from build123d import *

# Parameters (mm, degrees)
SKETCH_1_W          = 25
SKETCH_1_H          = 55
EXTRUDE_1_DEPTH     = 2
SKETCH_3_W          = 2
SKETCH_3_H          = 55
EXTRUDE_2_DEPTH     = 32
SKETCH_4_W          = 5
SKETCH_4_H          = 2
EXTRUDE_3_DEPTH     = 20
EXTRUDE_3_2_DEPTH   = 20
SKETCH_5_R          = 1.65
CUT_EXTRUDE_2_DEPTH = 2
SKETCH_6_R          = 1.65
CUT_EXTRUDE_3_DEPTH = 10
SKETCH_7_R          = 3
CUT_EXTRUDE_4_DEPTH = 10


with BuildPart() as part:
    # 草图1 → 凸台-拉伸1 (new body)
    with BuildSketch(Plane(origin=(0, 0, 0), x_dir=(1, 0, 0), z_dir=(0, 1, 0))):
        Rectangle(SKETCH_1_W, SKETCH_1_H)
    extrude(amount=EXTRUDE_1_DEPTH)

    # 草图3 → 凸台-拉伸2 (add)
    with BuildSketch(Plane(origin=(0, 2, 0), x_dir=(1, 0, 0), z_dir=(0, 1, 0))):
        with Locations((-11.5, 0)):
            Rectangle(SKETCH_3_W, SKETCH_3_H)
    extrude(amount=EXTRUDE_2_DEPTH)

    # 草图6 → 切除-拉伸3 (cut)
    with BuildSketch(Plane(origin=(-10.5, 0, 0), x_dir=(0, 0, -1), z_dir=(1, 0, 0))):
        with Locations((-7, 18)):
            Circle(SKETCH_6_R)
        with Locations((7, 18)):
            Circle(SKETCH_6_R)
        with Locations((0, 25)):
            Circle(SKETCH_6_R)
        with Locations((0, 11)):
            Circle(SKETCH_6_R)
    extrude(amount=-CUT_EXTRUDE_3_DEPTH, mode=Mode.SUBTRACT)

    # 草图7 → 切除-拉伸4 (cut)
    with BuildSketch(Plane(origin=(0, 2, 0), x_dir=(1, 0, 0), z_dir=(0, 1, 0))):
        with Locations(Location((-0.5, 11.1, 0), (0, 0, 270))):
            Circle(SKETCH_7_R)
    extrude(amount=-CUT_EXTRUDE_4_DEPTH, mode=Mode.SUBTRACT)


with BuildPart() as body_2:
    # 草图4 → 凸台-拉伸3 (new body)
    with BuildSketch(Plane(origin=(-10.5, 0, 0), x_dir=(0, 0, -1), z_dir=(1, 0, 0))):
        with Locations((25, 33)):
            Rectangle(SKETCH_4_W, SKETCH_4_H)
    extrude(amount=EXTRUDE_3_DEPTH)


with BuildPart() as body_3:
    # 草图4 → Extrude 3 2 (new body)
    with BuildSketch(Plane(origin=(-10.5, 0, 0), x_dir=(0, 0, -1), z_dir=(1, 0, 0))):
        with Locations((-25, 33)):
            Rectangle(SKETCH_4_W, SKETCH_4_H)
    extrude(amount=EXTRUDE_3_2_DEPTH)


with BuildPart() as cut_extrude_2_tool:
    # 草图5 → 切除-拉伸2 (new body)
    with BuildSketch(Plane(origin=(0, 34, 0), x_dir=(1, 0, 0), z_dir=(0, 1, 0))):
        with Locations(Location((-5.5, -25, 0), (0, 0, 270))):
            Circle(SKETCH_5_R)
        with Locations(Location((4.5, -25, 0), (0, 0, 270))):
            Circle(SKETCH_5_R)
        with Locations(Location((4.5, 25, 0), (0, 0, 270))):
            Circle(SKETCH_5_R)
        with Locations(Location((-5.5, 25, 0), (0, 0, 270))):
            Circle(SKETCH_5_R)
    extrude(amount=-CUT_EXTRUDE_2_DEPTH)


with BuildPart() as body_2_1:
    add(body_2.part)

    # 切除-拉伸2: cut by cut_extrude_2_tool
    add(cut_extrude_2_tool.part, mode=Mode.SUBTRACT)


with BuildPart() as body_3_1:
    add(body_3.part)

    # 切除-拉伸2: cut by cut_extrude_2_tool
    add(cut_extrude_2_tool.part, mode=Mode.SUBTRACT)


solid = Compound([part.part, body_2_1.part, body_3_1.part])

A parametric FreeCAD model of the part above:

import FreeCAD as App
import Part
import Sketcher

doc = App.newDocument("Part")
body = doc.addObject("PartDesign::Body", "Body")

# Sketch on XZ plane
sketch1 = doc.addObject("Sketcher::SketchObject", "Sketch")
body.addObject(sketch1)
sketch1.AttachmentSupport = (doc.XZ_Plane, [""])
sketch1.MapMode = "FlatFace"
sketch1.addGeometry([
    Part.LineSegment(App.Vector(-12, -28, 0), App.Vector(-12, 28, 0)),
    Part.LineSegment(App.Vector(-12, 28, 0), App.Vector(12, 28, 0)),
    Part.LineSegment(App.Vector(12, 28, 0), App.Vector(12, -28, 0)),
    Part.LineSegment(App.Vector(12, -28, 0), App.Vector(-12, -28, 0)),
], False)
sketch1.addConstraint([
    Sketcher.Constraint("Coincident", 0, 2, 1, 1),
    Sketcher.Constraint("Coincident", 1, 2, 2, 1),
    Sketcher.Constraint("Coincident", 2, 2, 3, 1),
    Sketcher.Constraint("Coincident", 3, 2, 0, 1),
    Sketcher.Constraint("Vertical", 0),
    Sketcher.Constraint("Horizontal", 1),
    Sketcher.Constraint("Vertical", 2),
    Sketcher.Constraint("Horizontal", 3),
    Sketcher.Constraint("Symmetric", 0, 2, 2, 2, -1, 1),
    Sketcher.Constraint("DistanceX", 1, 1, 1, 2, 25.0),
    Sketcher.Constraint("DistanceY", 0, 1, 0, 2, 55.0),
])
pad1 = doc.addObject("PartDesign::Pad", "Pad")
body.addObject(pad1)
pad1.Profile = sketch1
pad1.Length = 2
pad1.Reversed = True

# Sketch on XZ plane
sketch2 = doc.addObject("Sketcher::SketchObject", "Sketch001")
body.addObject(sketch2)
sketch2.AttachmentSupport = (doc.XZ_Plane, [""])
sketch2.MapMode = "FlatFace"
sketch2.AttachmentOffset = App.Placement(App.Vector(0, 0, -2), App.Rotation())
sketch2.addGeometry([
    Part.LineSegment(App.Vector(-12.5, -27.5, 0), App.Vector(-12.5, 27.5, 0)),
    Part.LineSegment(App.Vector(-12.5, 27.5, 0), App.Vector(-10.5, 27.5, 0)),
    Part.LineSegment(App.Vector(-10.5, 27.5, 0), App.Vector(-10.5, -27.5, 0)),
    Part.LineSegment(App.Vector(-10.5, -27.5, 0), App.Vector(-12.5, -27.5, 0)),
], False)
sketch2.addConstraint([
    Sketcher.Constraint("Coincident", 0, 2, 1, 1),
    Sketcher.Constraint("Coincident", 1, 2, 2, 1),
    Sketcher.Constraint("Coincident", 2, 2, 3, 1),
    Sketcher.Constraint("Coincident", 3, 2, 0, 1),
    Sketcher.Constraint("Vertical", 0),
    Sketcher.Constraint("Horizontal", 1),
    Sketcher.Constraint("Vertical", 2),
    Sketcher.Constraint("Horizontal", 3),
    Sketcher.Constraint("DistanceX", 1, 1, 1, 2, 2.0),
    Sketcher.Constraint("DistanceY", 0, 1, 0, 2, 55.0),
    Sketcher.Constraint("DistanceX", 0, 2, -1, 1, 12.5),
    Sketcher.Constraint("DistanceY", -1, 1, 0, 2, 27.5),
])
pad2 = doc.addObject("PartDesign::Pad", "Pad001")
body.addObject(pad2)
pad2.Profile = sketch2
pad2.Length = 32
pad2.Reversed = True

# Sketch on YZ plane
sketch3 = doc.addObject("Sketcher::SketchObject", "Sketch002")
body.addObject(sketch3)
sketch3.AttachmentSupport = (doc.YZ_Plane, [""])
sketch3.MapMode = "FlatFace"
sketch3.AttachmentOffset = App.Placement(App.Vector(0, 0, -10.5), App.Rotation())
sketch3.addGeometry([
    Part.Circle(App.Vector(18, 7, 0), App.Vector(0, 0, 1), 1.6),
    Part.Circle(App.Vector(18, -7, 0), App.Vector(0, 0, 1), 1.6),
    Part.Circle(App.Vector(25, 0, 0), App.Vector(0, 0, 1), 1.6),
    Part.Circle(App.Vector(11, 0, 0), App.Vector(0, 0, 1), 1.6),
], False)
sketch3.addConstraint([
    Sketcher.Constraint("Equal", 0, 1),
    Sketcher.Constraint("Equal", 1, 2),
    Sketcher.Constraint("Equal", 2, 3),
    Sketcher.Constraint("Symmetric", 0, 3, 1, 3, -1),
    Sketcher.Constraint("PointOnObject", 2, 3, -1),
    Sketcher.Constraint("PointOnObject", 3, 3, -1),
    Sketcher.Constraint("Diameter", 0, 3.3),
    Sketcher.Constraint("DistanceX", -1, 1, 0, 3, 18.0),
    Sketcher.Constraint("DistanceY", -1, 1, 0, 3, 7.0),
    Sketcher.Constraint("DistanceX", -1, 1, 2, 3, 25.0),
    Sketcher.Constraint("DistanceX", -1, 1, 3, 3, 11.0),
])
pocket1 = doc.addObject("PartDesign::Pocket", "Pocket")
body.addObject(pocket1)
pocket1.Profile = sketch3
pocket1.Length = 10

# Sketch on XZ plane
sketch4 = doc.addObject("Sketcher::SketchObject", "Sketch003")
body.addObject(sketch4)
sketch4.AttachmentSupport = (doc.XZ_Plane, [""])
sketch4.MapMode = "FlatFace"
sketch4.AttachmentOffset = App.Placement(App.Vector(0, 0, -2), App.Rotation())
sketch4.addGeometry(Part.Circle(App.Vector(-0.5, -11.1, 0), App.Vector(0, 0, 1), 3), False)
sketch4.addConstraint([
    Sketcher.Constraint("Diameter", 0, 6.0),
    Sketcher.Constraint("DistanceX", 0, 3, -1, 1, 0.5),
    Sketcher.Constraint("DistanceY", 0, 3, -1, 1, 11.1),
])
pocket2 = doc.addObject("PartDesign::Pocket", "Pocket001")
body.addObject(pocket2)
pocket2.Profile = sketch4
pocket2.Length = 10
pocket2.Reversed = True
body2 = doc.addObject("PartDesign::Body", "Body001")

# Sketch on YZ plane
sketch5 = doc.addObject("Sketcher::SketchObject", "Sketch004")
body2.addObject(sketch5)
sketch5.AttachmentSupport = (doc.getObject("YZ_Plane001"), [""])
sketch5.MapMode = "FlatFace"
sketch5.AttachmentOffset = App.Placement(App.Vector(0, 0, -10.5), App.Rotation())
sketch5.addGeometry([
    Part.LineSegment(App.Vector(34, -22.5, 0), App.Vector(32, -22.5, 0)),
    Part.LineSegment(App.Vector(32, -22.5, 0), App.Vector(32, -27.5, 0)),
    Part.LineSegment(App.Vector(32, -27.5, 0), App.Vector(34, -27.5, 0)),
    Part.LineSegment(App.Vector(34, -27.5, 0), App.Vector(34, -22.5, 0)),
], False)
sketch5.addConstraint([
    Sketcher.Constraint("Coincident", 0, 2, 1, 1),
    Sketcher.Constraint("Coincident", 1, 2, 2, 1),
    Sketcher.Constraint("Coincident", 2, 2, 3, 1),
    Sketcher.Constraint("Coincident", 3, 2, 0, 1),
    Sketcher.Constraint("Horizontal", 0),
    Sketcher.Constraint("Vertical", 1),
    Sketcher.Constraint("Horizontal", 2),
    Sketcher.Constraint("Vertical", 3),
    Sketcher.Constraint("DistanceX", 0, 2, 0, 1, 2.0),
    Sketcher.Constraint("DistanceY", 1, 2, 1, 1, 5.0),
    Sketcher.Constraint("DistanceX", -1, 1, 0, 2, 32.0),
    Sketcher.Constraint("DistanceY", 0, 2, -1, 1, 22.5),
])
pad3 = doc.addObject("PartDesign::Pad", "Pad002")
body2.addObject(pad3)
pad3.Profile = sketch5
pad3.Length = 20
body3 = doc.addObject("PartDesign::Body", "Body002")

# Sketch on YZ plane
sketch6 = doc.addObject("Sketcher::SketchObject", "Sketch005")
body3.addObject(sketch6)
sketch6.AttachmentSupport = (doc.getObject("YZ_Plane002"), [""])
sketch6.MapMode = "FlatFace"
sketch6.AttachmentOffset = App.Placement(App.Vector(0, 0, -10.5), App.Rotation())
sketch6.addGeometry([
    Part.LineSegment(App.Vector(34, 27.5, 0), App.Vector(32, 27.5, 0)),
    Part.LineSegment(App.Vector(32, 27.5, 0), App.Vector(32, 22.5, 0)),
    Part.LineSegment(App.Vector(32, 22.5, 0), App.Vector(34, 22.5, 0)),
    Part.LineSegment(App.Vector(34, 22.5, 0), App.Vector(34, 27.5, 0)),
], False)
sketch6.addConstraint([
    Sketcher.Constraint("Coincident", 0, 2, 1, 1),
    Sketcher.Constraint("Coincident", 1, 2, 2, 1),
    Sketcher.Constraint("Coincident", 2, 2, 3, 1),
    Sketcher.Constraint("Coincident", 3, 2, 0, 1),
    Sketcher.Constraint("Horizontal", 0),
    Sketcher.Constraint("Vertical", 1),
    Sketcher.Constraint("Horizontal", 2),
    Sketcher.Constraint("Vertical", 3),
    Sketcher.Constraint("DistanceX", 0, 2, 0, 1, 2.0),
    Sketcher.Constraint("DistanceY", 1, 2, 1, 1, 5.0),
    Sketcher.Constraint("DistanceX", -1, 1, 0, 2, 32.0),
    Sketcher.Constraint("DistanceY", -1, 1, 0, 2, 27.5),
])
pad4 = doc.addObject("PartDesign::Pad", "Pad003")
body3.addObject(pad4)
pad4.Profile = sketch6
pad4.Length = 20
body4 = doc.addObject("PartDesign::Body", "Body003")
body4.AllowCompound = True

# Sketch on XZ plane
sketch7 = doc.addObject("Sketcher::SketchObject", "Sketch006")
body4.addObject(sketch7)
sketch7.AttachmentSupport = (doc.getObject("XZ_Plane003"), [""])
sketch7.MapMode = "FlatFace"
sketch7.AttachmentOffset = App.Placement(App.Vector(0, 0, -34), App.Rotation())
sketch7.addGeometry([
    Part.Circle(App.Vector(-5.5, 25, 0), App.Vector(0, 0, 1), 1.6),
    Part.Circle(App.Vector(4.5, 25, 0), App.Vector(0, 0, 1), 1.6),
    Part.Circle(App.Vector(4.5, -25, 0), App.Vector(0, 0, 1), 1.6),
    Part.Circle(App.Vector(-5.5, -25, 0), App.Vector(0, 0, 1), 1.6),
], False)
sketch7.addConstraint([
    Sketcher.Constraint("Equal", 0, 1),
    Sketcher.Constraint("Equal", 1, 2),
    Sketcher.Constraint("Equal", 2, 3),
    Sketcher.Constraint("Symmetric", 1, 3, 2, 3, -1),
    Sketcher.Constraint("Symmetric", 0, 3, 3, 3, -1),
    Sketcher.Constraint("Horizontal", 0, 3, 1, 3),
    Sketcher.Constraint("Diameter", 0, 3.3),
    Sketcher.Constraint("DistanceY", -1, 1, 0, 3, 25.0),
    Sketcher.Constraint("DistanceX", 0, 3, 1, 3, 10.0),
    Sketcher.Constraint("DistanceX", 0, 3, -1, 1, 5.5),
])
pad5 = doc.addObject("PartDesign::Pad", "Pad004")
body4.addObject(pad5)
pad5.Profile = sketch7
pad5.Length = 2
doc.recompute()

body5 = doc.addObject("PartDesign::Body", "Body004")
body5.BaseFeature = body4
boolean = doc.addObject("PartDesign::Boolean", "Boolean")
body2.addObject(boolean)
boolean.Type = "Cut"
boolean.addObjects([body5])
doc.recompute()

boolean2 = doc.addObject("PartDesign::Boolean", "Boolean001")
body3.addObject(boolean2)
boolean2.Type = "Cut"
boolean2.addObjects([body4])

doc.recompute()
